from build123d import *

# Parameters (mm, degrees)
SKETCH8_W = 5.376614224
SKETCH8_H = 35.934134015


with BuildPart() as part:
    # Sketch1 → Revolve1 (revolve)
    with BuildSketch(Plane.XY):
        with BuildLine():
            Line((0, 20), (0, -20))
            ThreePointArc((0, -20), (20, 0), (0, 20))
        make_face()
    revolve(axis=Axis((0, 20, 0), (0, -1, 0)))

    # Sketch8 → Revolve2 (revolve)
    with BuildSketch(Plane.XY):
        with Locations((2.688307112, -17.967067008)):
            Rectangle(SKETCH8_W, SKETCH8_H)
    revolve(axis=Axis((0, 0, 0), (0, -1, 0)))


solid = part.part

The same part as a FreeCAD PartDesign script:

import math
import FreeCAD as App
import Part
import Sketcher

V = App.Vector
Q = App.Units.Quantity


def add_polygon(sketch, points):
    """Adds a closed chain of lines whose ends are joined by coincident constraints."""
    first, n = sketch.GeometryCount, len(points)
    for a, b in zip(points, points[1:] + points[:1]):
        sketch.addGeometry(Part.LineSegment(App.Vector(*a, 0), App.Vector(*b, 0)), False)
    for i in range(n):
        sketch.addConstraint(Sketcher.Constraint("Coincident", first + i, 2, first + (i + 1) % n, 1))

doc = App.newDocument("Part")
body = doc.addObject("PartDesign::Body", "Body")

# Sketch on XY plane
sketch1 = body.newObject("Sketcher::SketchObject", "Sketch")
sketch1.AttachmentSupport = (doc.getObject("XY_Plane"), [""])
sketch1.MapMode = "FlatFace"
sketch1.addGeometry([
    Part.LineSegment(V(0, 20, 0), V(0, -20, 0)),
    Part.ArcOfCircle(Part.Circle(V(0, 0, 0), V(0, 0, 1), 20), math.radians(-90), math.radians(90)),
], False)
sketch1.addConstraint([
    Sketcher.Constraint("Coincident", 0, 1, 1, 2),
    Sketcher.Constraint("Coincident", 1, 1, 0, 2),
    Sketcher.Constraint("Vertical", 0),
    Sketcher.Constraint("Coincident", 1, 3, -1, 1),
    Sketcher.Constraint("PointOnObject", 0, 1, -2),
    Sketcher.Constraint("Radius", 1, Q("20 mm")),
])
revolution = body.newObject("PartDesign::Revolution", "Revolution")
revolution.Profile = sketch1
revolution.ReferenceAxis = (sketch1, ["V_Axis"])
revolution.Angle = 360

# Sketch on XY plane
sketch2 = body.newObject("Sketcher::SketchObject", "Sketch001")
sketch2.AttachmentSupport = (doc.getObject("XY_Plane"), [""])
sketch2.MapMode = "FlatFace"
add_polygon(sketch2, [(0, 0), (0, -36), (5, -36), (5, 0)])  # lines 0-3
sketch2.addConstraint([
    Sketcher.Constraint("Vertical", 0),
    Sketcher.Constraint("Horizontal", 1),
    Sketcher.Constraint("Vertical", 2),
    Sketcher.Constraint("Horizontal", 3),
    Sketcher.Constraint("Coincident", 3, 2, -1, 1),
    Sketcher.Constraint("DistanceX", 1, 1, 1, 2, Q("5.376614 mm")),
    Sketcher.Constraint("DistanceY", 0, 2, 0, 1, Q("35.934134 mm")),
])
revolution2 = body.newObject("PartDesign::Revolution", "Revolution001")
revolution2.Profile = sketch2
revolution2.ReferenceAxis = (sketch2, ["V_Axis"])
revolution2.Angle = 360

doc.recompute()
